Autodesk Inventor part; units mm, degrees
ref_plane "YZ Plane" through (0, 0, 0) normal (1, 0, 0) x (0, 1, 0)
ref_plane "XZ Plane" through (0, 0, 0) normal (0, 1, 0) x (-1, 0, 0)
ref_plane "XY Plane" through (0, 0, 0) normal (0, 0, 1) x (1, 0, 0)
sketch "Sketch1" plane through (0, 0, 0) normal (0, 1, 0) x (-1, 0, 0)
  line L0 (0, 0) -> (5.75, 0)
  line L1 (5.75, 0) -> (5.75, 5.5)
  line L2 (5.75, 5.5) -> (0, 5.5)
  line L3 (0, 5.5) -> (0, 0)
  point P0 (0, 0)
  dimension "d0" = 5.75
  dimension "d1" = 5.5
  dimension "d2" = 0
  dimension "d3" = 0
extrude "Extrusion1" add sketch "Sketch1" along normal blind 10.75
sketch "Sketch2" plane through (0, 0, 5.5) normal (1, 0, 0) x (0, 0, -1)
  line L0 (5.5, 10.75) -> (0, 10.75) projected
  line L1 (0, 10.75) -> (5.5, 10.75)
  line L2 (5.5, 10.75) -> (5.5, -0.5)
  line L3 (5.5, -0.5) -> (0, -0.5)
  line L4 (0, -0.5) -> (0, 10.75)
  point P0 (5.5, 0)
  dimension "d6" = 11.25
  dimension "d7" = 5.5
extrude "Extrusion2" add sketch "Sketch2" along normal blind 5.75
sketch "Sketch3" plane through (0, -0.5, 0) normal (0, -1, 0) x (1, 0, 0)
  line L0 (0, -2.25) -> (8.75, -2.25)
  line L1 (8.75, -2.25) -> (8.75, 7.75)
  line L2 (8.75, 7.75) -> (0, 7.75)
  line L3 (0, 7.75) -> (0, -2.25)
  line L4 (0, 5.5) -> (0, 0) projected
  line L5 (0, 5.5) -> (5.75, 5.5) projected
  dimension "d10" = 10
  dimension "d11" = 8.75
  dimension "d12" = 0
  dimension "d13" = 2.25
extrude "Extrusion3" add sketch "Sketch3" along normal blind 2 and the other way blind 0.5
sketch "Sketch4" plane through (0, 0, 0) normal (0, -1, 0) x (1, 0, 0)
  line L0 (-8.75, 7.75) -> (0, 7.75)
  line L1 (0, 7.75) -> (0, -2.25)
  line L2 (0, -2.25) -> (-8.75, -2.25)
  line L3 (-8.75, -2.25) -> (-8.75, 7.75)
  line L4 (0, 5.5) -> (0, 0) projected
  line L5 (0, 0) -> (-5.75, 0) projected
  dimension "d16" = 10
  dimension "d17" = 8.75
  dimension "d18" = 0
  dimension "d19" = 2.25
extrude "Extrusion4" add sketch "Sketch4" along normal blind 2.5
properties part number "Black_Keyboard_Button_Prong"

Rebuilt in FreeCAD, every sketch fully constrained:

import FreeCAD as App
import Part
import Sketcher
from FreeCAD import Vector

doc = App.newDocument("Part")
body = doc.addObject("PartDesign::Body", "Body")

sketch1 = body.newObject("Sketcher::SketchObject", "Sketch")
sketch1.AttachmentSupport = (doc.getObject("XZ_Plane"), [""])
sketch1.MapMode = "FlatFace"
sketch1.addGeometry(Part.LineSegment(Vector(0, 6, 0), Vector(0, 0, 0)), False)
sketch1.addGeometry(Part.LineSegment(Vector(0, 0, 0), Vector(-6, 0, 0)), False)
sketch1.addGeometry(Part.LineSegment(Vector(-6, 0, 0), Vector(-6, 6, 0)), False)
sketch1.addGeometry(Part.LineSegment(Vector(-6, 6, 0), Vector(0, 6, 0)), False)
sketch1.addConstraint(Sketcher.Constraint("Coincident", 0, 2, 1, 1))
sketch1.addConstraint(Sketcher.Constraint("Coincident", 1, 2, 2, 1))
sketch1.addConstraint(Sketcher.Constraint("Coincident", 2, 2, 3, 1))
sketch1.addConstraint(Sketcher.Constraint("Coincident", 3, 2, 0, 1))
sketch1.addConstraint(Sketcher.Constraint("Vertical", 0))
sketch1.addConstraint(Sketcher.Constraint("Horizontal", 1))
sketch1.addConstraint(Sketcher.Constraint("Vertical", 2))
sketch1.addConstraint(Sketcher.Constraint("Horizontal", 3))
sketch1.addConstraint(Sketcher.Constraint("Coincident", 0, 2, -1, 1))
sketch1.addConstraint(Sketcher.Constraint("DistanceY", 0, 2, 0, 1, 5.5))
sketch1.addConstraint(Sketcher.Constraint("DistanceX", 1, 2, 1, 1, 5.75))
pad1 = body.newObject("PartDesign::Pad", "Pad")
pad1.Profile = sketch1
pad1.Length = 10.75
pad1.Reversed = True

sketch2 = body.newObject("Sketcher::SketchObject", "Sketch001")
sketch2.AttachmentSupport = (doc.getObject("YZ_Plane"), [""])
sketch2.MapMode = "FlatFace"
sketch2.addGeometry(Part.LineSegment(Vector(0, 0, 0), Vector(11, 0, 0)), False)
sketch2.addGeometry(Part.LineSegment(Vector(11, 0, 0), Vector(11, 6, 0)), False)
sketch2.addGeometry(Part.LineSegment(Vector(11, 6, 0), Vector(0, 6, 0)), False)
sketch2.addGeometry(Part.LineSegment(Vector(0, 6, 0), Vector(0, 0, 0)), False)
sketch2.addConstraint(Sketcher.Constraint("Coincident", 0, 2, 1, 1))
sketch2.addConstraint(Sketcher.Constraint("Coincident", 1, 2, 2, 1))
sketch2.addConstraint(Sketcher.Constraint("Coincident", 2, 2, 3, 1))
sketch2.addConstraint(Sketcher.Constraint("Coincident", 3, 2, 0, 1))
sketch2.addConstraint(Sketcher.Constraint("Horizontal", 0))
sketch2.addConstraint(Sketcher.Constraint("Vertical", 1))
sketch2.addConstraint(Sketcher.Constraint("Horizontal", 2))
sketch2.addConstraint(Sketcher.Constraint("Vertical", 3))
sketch2.addConstraint(Sketcher.Constraint("PointOnObject", 0, 2, -1))
sketch2.addConstraint(Sketcher.Constraint("DistanceY", 1, 1, 1, 2, 5.5))
sketch2.addConstraint(Sketcher.Constraint("DistanceX", 0, 1, 0, 2, 11.25))
sketch2.addConstraint(Sketcher.Constraint("DistanceX", 2, 2, -1, 1, 0.5))
pad2 = body.newObject("PartDesign::Pad", "Pad001")
pad2.Profile = sketch2
pad2.Length = 5.75

sketch3 = body.newObject("Sketcher::SketchObject", "Sketch002")
sketch3.AttachmentSupport = (doc.getObject("XZ_Plane"), [""])
sketch3.MapMode = "FlatFace"
sketch3.AttachmentOffset = App.Placement(Vector(0, 0, 0.5), App.Rotation())
sketch3.addGeometry(Part.LineSegment(Vector(0, 8, 0), Vector(0, -2, 0)), False)
sketch3.addGeometry(Part.LineSegment(Vector(0, -2, 0), Vector(9, -2, 0)), False)
sketch3.addGeometry(Part.LineSegment(Vector(9, -2, 0), Vector(9, 8, 0)), False)
sketch3.addGeometry(Part.LineSegment(Vector(9, 8, 0), Vector(0, 8, 0)), False)
sketch3.addConstraint(Sketcher.Constraint("Coincident", 0, 2, 1, 1))
sketch3.addConstraint(Sketcher.Constraint("Coincident", 1, 2, 2, 1))
sketch3.addConstraint(Sketcher.Constraint("Coincident", 2, 2, 3, 1))
sketch3.addConstraint(Sketcher.Constraint("Coincident", 3, 2, 0, 1))
sketch3.addConstraint(Sketcher.Constraint("Vertical", 0))
sketch3.addConstraint(Sketcher.Constraint("Horizontal", 1))
sketch3.addConstraint(Sketcher.Constraint("Vertical", 2))
sketch3.addConstraint(Sketcher.Constraint("Horizontal", 3))
sketch3.addConstraint(Sketcher.Constraint("PointOnObject", 0, 2, -2))
sketch3.addConstraint(Sketcher.Constraint("DistanceY", 0, 2, 0, 1, 10.0))
sketch3.addConstraint(Sketcher.Constraint("DistanceX", 1, 1, 1, 2, 8.75))
sketch3.addConstraint(Sketcher.Constraint("DistanceY", 0, 2, -1, 1, 2.25))
pad3 = body.newObject("PartDesign::Pad", "Pad002")
pad3.Profile = sketch3
pad3.Type = "TwoLengths"
pad3.Length = 2
pad3.Length2 = 0.5

sketch4 = body.newObject("Sketcher::SketchObject", "Sketch003")
sketch4.AttachmentSupport = (doc.getObject("XZ_Plane"), [""])
sketch4.MapMode = "FlatFace"
sketch4.addGeometry(Part.LineSegment(Vector(0, 8, 0), Vector(-9, 8, 0)), False)
sketch4.addGeometry(Part.LineSegment(Vector(-9, 8, 0), Vector(-9, -2, 0)), False)
sketch4.addGeometry(Part.LineSegment(Vector(-9, -2, 0), Vector(0, -2, 0)), False)
sketch4.addGeometry(Part.LineSegment(Vector(0, -2, 0), Vector(0, 8, 0)), False)
sketch4.addConstraint(Sketcher.Constraint("Coincident", 0, 2, 1, 1))
sketch4.addConstraint(Sketcher.Constraint("Coincident", 1, 2, 2, 1))
sketch4.addConstraint(Sketcher.Constraint("Coincident", 2, 2, 3, 1))
sketch4.addConstraint(Sketcher.Constraint("Coincident", 3, 2, 0, 1))
sketch4.addConstraint(Sketcher.Constraint("Horizontal", 0))
sketch4.addConstraint(Sketcher.Constraint("Vertical", 1))
sketch4.addConstraint(Sketcher.Constraint("Horizontal", 2))
sketch4.addConstraint(Sketcher.Constraint("Vertical", 3))
sketch4.addConstraint(Sketcher.Constraint("PointOnObject", 2, 2, -2))
sketch4.addConstraint(Sketcher.Constraint("DistanceY", 1, 2, 1, 1, 10.0))
sketch4.addConstraint(Sketcher.Constraint("DistanceX", 0, 2, 0, 1, 8.75))
sketch4.addConstraint(Sketcher.Constraint("DistanceY", 1, 2, -1, 1, 2.25))
pad4 = body.newObject("PartDesign::Pad", "Pad003")
pad4.Profile = sketch4
pad4.Length = 2.5

doc.recompute()
